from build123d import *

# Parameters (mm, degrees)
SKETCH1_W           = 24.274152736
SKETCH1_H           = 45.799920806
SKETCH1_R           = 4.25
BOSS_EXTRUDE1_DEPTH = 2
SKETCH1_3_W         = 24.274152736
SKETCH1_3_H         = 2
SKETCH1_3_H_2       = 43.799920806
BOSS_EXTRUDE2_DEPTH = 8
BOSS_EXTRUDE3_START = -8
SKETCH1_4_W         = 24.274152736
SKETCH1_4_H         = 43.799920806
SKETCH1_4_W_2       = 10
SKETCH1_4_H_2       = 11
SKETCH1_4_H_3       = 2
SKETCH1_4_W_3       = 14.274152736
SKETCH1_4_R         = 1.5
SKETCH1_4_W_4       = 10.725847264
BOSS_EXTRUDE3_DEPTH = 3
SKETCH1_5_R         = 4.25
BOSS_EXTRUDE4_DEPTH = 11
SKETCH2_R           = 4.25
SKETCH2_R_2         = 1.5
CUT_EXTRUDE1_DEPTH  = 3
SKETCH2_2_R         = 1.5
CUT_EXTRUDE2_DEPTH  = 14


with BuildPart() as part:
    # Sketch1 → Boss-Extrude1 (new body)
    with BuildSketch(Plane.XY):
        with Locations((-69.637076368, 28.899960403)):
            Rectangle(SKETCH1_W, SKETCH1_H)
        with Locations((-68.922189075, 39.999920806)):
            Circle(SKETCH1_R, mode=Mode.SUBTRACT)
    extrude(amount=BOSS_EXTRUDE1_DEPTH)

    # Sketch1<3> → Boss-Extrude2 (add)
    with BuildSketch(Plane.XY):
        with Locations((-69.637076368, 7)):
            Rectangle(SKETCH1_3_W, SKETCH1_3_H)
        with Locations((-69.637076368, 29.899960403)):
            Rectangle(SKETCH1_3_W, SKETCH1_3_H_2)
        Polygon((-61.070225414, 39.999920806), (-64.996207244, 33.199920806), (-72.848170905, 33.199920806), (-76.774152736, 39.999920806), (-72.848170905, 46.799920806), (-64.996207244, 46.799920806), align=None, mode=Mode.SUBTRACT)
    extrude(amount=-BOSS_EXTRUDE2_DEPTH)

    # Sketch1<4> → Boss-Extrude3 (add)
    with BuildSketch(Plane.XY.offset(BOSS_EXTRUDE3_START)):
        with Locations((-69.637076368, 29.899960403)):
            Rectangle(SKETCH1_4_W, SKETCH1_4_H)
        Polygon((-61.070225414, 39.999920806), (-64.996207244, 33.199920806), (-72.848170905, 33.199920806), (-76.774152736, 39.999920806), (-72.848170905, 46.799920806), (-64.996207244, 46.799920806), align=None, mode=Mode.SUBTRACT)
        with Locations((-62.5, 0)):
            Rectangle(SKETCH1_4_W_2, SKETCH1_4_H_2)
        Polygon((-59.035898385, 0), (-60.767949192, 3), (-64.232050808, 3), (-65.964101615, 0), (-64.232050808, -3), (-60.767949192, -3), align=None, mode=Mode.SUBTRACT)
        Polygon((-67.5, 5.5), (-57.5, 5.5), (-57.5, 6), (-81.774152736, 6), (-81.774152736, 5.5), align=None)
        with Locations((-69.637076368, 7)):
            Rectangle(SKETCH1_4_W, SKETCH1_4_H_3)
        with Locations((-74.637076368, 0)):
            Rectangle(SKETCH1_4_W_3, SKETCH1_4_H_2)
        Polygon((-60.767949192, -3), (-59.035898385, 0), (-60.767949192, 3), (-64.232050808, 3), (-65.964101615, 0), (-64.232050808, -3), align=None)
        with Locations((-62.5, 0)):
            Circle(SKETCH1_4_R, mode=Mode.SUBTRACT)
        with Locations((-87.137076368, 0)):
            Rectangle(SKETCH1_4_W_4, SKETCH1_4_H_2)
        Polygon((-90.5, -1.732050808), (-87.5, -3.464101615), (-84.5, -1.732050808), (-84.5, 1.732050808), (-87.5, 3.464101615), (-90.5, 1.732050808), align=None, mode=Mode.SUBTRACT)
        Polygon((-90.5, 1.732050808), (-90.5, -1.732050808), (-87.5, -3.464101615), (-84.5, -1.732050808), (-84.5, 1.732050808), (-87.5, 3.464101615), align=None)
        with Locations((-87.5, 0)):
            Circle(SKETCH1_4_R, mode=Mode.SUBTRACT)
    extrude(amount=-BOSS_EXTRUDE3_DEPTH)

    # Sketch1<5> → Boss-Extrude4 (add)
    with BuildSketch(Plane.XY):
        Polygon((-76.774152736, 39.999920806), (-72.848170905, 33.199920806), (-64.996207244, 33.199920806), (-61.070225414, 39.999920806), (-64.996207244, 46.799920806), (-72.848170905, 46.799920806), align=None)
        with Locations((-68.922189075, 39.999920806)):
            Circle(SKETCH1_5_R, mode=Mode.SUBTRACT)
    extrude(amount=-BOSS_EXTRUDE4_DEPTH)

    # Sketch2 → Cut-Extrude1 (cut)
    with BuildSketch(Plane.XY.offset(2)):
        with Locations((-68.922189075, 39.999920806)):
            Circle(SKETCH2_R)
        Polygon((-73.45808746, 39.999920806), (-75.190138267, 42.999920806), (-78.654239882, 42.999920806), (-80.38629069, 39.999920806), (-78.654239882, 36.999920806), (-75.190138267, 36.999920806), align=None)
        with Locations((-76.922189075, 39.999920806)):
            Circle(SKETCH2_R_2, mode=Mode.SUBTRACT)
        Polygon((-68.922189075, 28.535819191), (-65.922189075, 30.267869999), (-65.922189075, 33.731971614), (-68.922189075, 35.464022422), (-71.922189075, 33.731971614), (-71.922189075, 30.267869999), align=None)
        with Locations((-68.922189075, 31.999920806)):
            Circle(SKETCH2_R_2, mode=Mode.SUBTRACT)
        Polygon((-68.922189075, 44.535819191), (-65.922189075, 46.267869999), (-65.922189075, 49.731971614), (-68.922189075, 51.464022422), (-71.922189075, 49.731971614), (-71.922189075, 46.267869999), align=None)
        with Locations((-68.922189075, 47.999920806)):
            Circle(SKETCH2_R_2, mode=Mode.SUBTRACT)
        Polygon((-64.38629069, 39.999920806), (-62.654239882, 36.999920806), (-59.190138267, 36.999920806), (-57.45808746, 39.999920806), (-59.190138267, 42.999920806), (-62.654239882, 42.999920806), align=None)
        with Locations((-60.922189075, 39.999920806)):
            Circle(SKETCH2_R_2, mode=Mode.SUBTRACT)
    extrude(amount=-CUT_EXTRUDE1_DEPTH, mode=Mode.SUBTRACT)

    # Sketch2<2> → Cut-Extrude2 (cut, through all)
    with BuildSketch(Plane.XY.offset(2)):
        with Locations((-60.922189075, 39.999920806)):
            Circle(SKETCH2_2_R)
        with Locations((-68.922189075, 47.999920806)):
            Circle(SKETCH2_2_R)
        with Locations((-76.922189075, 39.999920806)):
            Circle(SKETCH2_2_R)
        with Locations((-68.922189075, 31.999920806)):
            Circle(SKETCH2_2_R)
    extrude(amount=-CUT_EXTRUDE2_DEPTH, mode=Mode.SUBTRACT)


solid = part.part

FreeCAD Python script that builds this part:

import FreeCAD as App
import Part
import Sketcher
Q = App.Units.Quantity

doc = App.newDocument("Part")
body = doc.addObject("PartDesign::Body", "Body")

# Sketch on XY plane
sketch1 = body.newObject("Sketcher::SketchObject", "Sketch")
sketch1.AttachmentSupport = (doc.getObject("XY_Plane"), [""])
sketch1.MapMode = "FlatFace"
sketch1.addGeometry([
    Part.LineSegment(App.Vector(-81.8, 51.8, 0), App.Vector(-81.8, 6, 0)),  # 0
    Part.LineSegment(App.Vector(-81.8, 6, 0), App.Vector(-57.5, 6, 0)),  # 1
    Part.LineSegment(App.Vector(-57.5, 6, 0), App.Vector(-57.5, 51.8, 0)),  # 2
    Part.LineSegment(App.Vector(-57.5, 51.8, 0), App.Vector(-81.8, 51.8, 0)),  # 3
    Part.Circle(App.Vector(-68.9, 40, 0), App.Vector(0, 0, 1), 4.2),  # 4
], False)
sketch1.addConstraint([
    Sketcher.Constraint("Coincident", 0, 2, 1, 1),
    Sketcher.Constraint("Coincident", 1, 2, 2, 1),
    Sketcher.Constraint("Coincident", 2, 2, 3, 1),
    Sketcher.Constraint("Coincident", 3, 2, 0, 1),
    Sketcher.Constraint("Vertical", 0),
    Sketcher.Constraint("Horizontal", 1),
    Sketcher.Constraint("Vertical", 2),
    Sketcher.Constraint("Horizontal", 3),
    Sketcher.Constraint("Diameter", 4, Q("8.5 mm")),
    Sketcher.Constraint("DistanceY", -1, 1, 0, 2, Q("6 mm")),
    Sketcher.Constraint("DistanceX", 1, 2, -1, 1, Q("57.5 mm")),
    Sketcher.Constraint("DistanceY", 4, 3, 2, 2, Q("11.8 mm")),
    Sketcher.Constraint("DistanceY", 0, 2, 0, 1, Q("45.799921 mm")),
    Sketcher.Constraint("DistanceX", 1, 1, 1, 2, Q("24.274153 mm")),
    Sketcher.Constraint("DistanceX", 4, 3, -1, 1, Q("68.922189 mm")),
])
pad1 = body.newObject("PartDesign::Pad", "Pad")
pad1.Profile = sketch1
pad1.Length = 2

# Sketch on XY plane
sketch2 = body.newObject("Sketcher::SketchObject", "Sketch001")
sketch2.AttachmentSupport = (doc.getObject("XY_Plane"), [""])
sketch2.MapMode = "FlatFace"
sketch2.addGeometry([
    Part.LineSegment(App.Vector(-82, 6, 0), App.Vector(-58, 6, 0)),  # 0
    Part.LineSegment(App.Vector(-58, 6, 0), App.Vector(-58, 52, 0)),  # 1
    Part.LineSegment(App.Vector(-58, 52, 0), App.Vector(-82, 52, 0)),  # 2
    Part.LineSegment(App.Vector(-82, 52, 0), App.Vector(-82, 6, 0)),  # 3
    Part.LineSegment(App.Vector(-65, 47, 0), App.Vector(-61, 40, 0)),  # 4
    Part.LineSegment(App.Vector(-61, 40, 0), App.Vector(-65, 33, 0)),  # 5
    Part.LineSegment(App.Vector(-65, 33, 0), App.Vector(-73, 33, 0)),  # 6
    Part.LineSegment(App.Vector(-73, 33, 0), App.Vector(-77, 40, 0)),  # 7
    Part.LineSegment(App.Vector(-77, 40, 0), App.Vector(-73, 47, 0)),  # 8
    Part.LineSegment(App.Vector(-73, 47, 0), App.Vector(-65, 47, 0)),  # 9
], False)
sketch2.addConstraint([
    Sketcher.Constraint("Coincident", 0, 2, 1, 1),
    Sketcher.Constraint("Coincident", 1, 2, 2, 1),
    Sketcher.Constraint("Coincident", 2, 2, 3, 1),
    Sketcher.Constraint("Coincident", 3, 2, 0, 1),
    Sketcher.Constraint("Coincident", 4, 2, 5, 1),
    Sketcher.Constraint("Coincident", 5, 2, 6, 1),
    Sketcher.Constraint("Coincident", 6, 2, 7, 1),
    Sketcher.Constraint("Coincident", 7, 2, 8, 1),
    Sketcher.Constraint("Coincident", 8, 2, 9, 1),
    Sketcher.Constraint("Coincident", 9, 2, 4, 1),
    Sketcher.Constraint("Horizontal", 0),
    Sketcher.Constraint("Vertical", 1),
    Sketcher.Constraint("Horizontal", 2),
    Sketcher.Constraint("Vertical", 3),
    Sketcher.Constraint("Horizontal", 6),
    Sketcher.Constraint("Horizontal", 9),
    Sketcher.Constraint("Parallel", 4, 7),
    Sketcher.Constraint("Parallel", 5, 8),
    Sketcher.Constraint("Horizontal", 4, 2, 7, 2),
    Sketcher.Constraint("Vertical", 6, 2, 8, 2),
    Sketcher.Constraint("Vertical", 5, 2, 9, 2),
    Sketcher.Constraint("Angle", 4, Q("-60 deg")),
    Sketcher.Constraint("DistanceY", -1, 1, 0, 2, Q("6 mm")),
    Sketcher.Constraint("DistanceX", 2, 2, 7, 2, Q("5 mm")),
    Sketcher.Constraint("DistanceY", 8, 2, 2, 2, Q("5 mm")),
    Sketcher.Constraint("DistanceX", 0, 2, -1, 1, Q("57.5 mm")),
    Sketcher.Constraint("DistanceY", 4, 2, 1, 2, Q("11.8 mm")),
    Sketcher.Constraint("DistanceY", 1, 1, 1, 2, Q("45.799921 mm")),
    Sketcher.Constraint("DistanceX", 0, 1, 0, 2, Q("24.274153 mm")),
    Sketcher.Constraint("DistanceX", 6, 2, 6, 1, Q("7.851964 mm")),
])
pad2 = body.newObject("PartDesign::Pad", "Pad001")
pad2.Profile = sketch2
pad2.Length = 8
pad2.Reversed = True

# Sketch on XY plane
sketch3 = body.newObject("Sketcher::SketchObject", "Sketch002")
sketch3.AttachmentSupport = (doc.getObject("XY_Plane"), [""])
sketch3.MapMode = "FlatFace"
sketch3.AttachmentOffset = App.Placement(App.Vector(0, 0, -8), App.Rotation())
sketch3.addGeometry([
    Part.LineSegment(App.Vector(-81.8, 51.8, 0), App.Vector(-81.8, 5.5, 0)),  # 0
    Part.LineSegment(App.Vector(-81.8, 5.5, 0), App.Vector(-92.5, 5.5, 0)),  # 1
    Part.LineSegment(App.Vector(-92.5, 5.5, 0), App.Vector(-92.5, -5.5, 0)),  # 2
    Part.LineSegment(App.Vector(-92.5, -5.5, 0), App.Vector(-57.5, -5.5, 0)),  # 3
    Part.LineSegment(App.Vector(-57.5, -5.5, 0), App.Vector(-57.5, 51.8, 0)),  # 4
    Part.LineSegment(App.Vector(-57.5, 51.8, 0), App.Vector(-81.8, 51.8, 0)),  # 5
    Part.Circle(App.Vector(-87.5, 0, 0), App.Vector(0, 0, 1), 1.5),  # 6
    Part.Circle(App.Vector(-62.5, 0, 0), App.Vector(0, 0, 1), 1.5),  # 7
    Part.LineSegment(App.Vector(-65, 46.8, 0), App.Vector(-61.1, 40, 0)),  # 8
    Part.LineSegment(App.Vector(-61.1, 40, 0), App.Vector(-65, 33.2, 0)),  # 9
    Part.LineSegment(App.Vector(-65, 33.2, 0), App.Vector(-72.8, 33.2, 0)),  # 10
    Part.LineSegment(App.Vector(-72.8, 33.2, 0), App.Vector(-76.8, 40, 0)),  # 11
    Part.LineSegment(App.Vector(-76.8, 40, 0), App.Vector(-72.8, 46.8, 0)),  # 12
    Part.LineSegment(App.Vector(-72.8, 46.8, 0), App.Vector(-65, 46.8, 0)),  # 13
], False)
sketch3.addConstraint([
    Sketcher.Constraint("Coincident", 0, 2, 1, 1),
    Sketcher.Constraint("Coincident", 1, 2, 2, 1),
    Sketcher.Constraint("Coincident", 2, 2, 3, 1),
    Sketcher.Constraint("Coincident", 3, 2, 4, 1),
    Sketcher.Constraint("Coincident", 4, 2, 5, 1),
    Sketcher.Constraint("Coincident", 5, 2, 0, 1),
    Sketcher.Constraint("Coincident", 8, 2, 9, 1),
    Sketcher.Constraint("Coincident", 9, 2, 10, 1),
    Sketcher.Constraint("Coincident", 10, 2, 11, 1),
    Sketcher.Constraint("Coincident", 11, 2, 12, 1),
    Sketcher.Constraint("Coincident", 12, 2, 13, 1),
    Sketcher.Constraint("Coincident", 13, 2, 8, 1),
    Sketcher.Constraint("Vertical", 0),
    Sketcher.Constraint("Horizontal", 1),
    Sketcher.Constraint("Vertical", 2),
    Sketcher.Constraint("Horizontal", 3),
    Sketcher.Constraint("Vertical", 4),
    Sketcher.Constraint("Horizontal", 5),
    Sketcher.Constraint("Horizontal", 10),
    Sketcher.Constraint("Horizontal", 13),
    Sketcher.Constraint("Equal", 6, 7),
    Sketcher.Constraint("PointOnObject", 6, 3, -1),
    Sketcher.Constraint("PointOnObject", 7, 3, -1),
    Sketcher.Constraint("Parallel", 8, 11),
    Sketcher.Constraint("Parallel", 9, 12),
    Sketcher.Constraint("Horizontal", 8, 2, 11, 2),
    Sketcher.Constraint("Vertical", 10, 2, 12, 2),
    Sketcher.Constraint("Vertical", 9, 2, 13, 2),
    Sketcher.Constraint("Diameter", 6, Q("3 mm")),
    Sketcher.Constraint("DistanceX", 3, 1, 3, 2, Q("35 mm")),
    Sketcher.Constraint("DistanceY", 2, 2, 2, 1, Q("11 mm")),
    Sketcher.Constraint("Angle", 8, Q("-60 deg")),
    Sketcher.Constraint("DistanceX", 6, 3, 7, 3, Q("25 mm")),
    Sketcher.Constraint("DistanceX", 1, 2, 6, 3, Q("5 mm")),
    Sketcher.Constraint("DistanceX", 5, 2, 11, 2, Q("5 mm")),
    Sketcher.Constraint("DistanceY", 12, 2, 5, 2, Q("5 mm")),
    Sketcher.Constraint("DistanceX", 6, 3, -1, 1, Q("87.5 mm")),
    Sketcher.Constraint("DistanceY", -1, 1, 0, 2, Q("5.5 mm")),
    Sketcher.Constraint("DistanceY", 8, 2, 4, 2, Q("11.8 mm")),
    Sketcher.Constraint("DistanceY", 0, 2, 0, 1, Q("46.299921 mm")),
    Sketcher.Constraint("DistanceX", 1, 2, 1, 1, Q("10.725847 mm")),
    Sketcher.Constraint("DistanceX", 10, 2, 10, 1, Q("7.851964 mm")),
])
pad3 = body.newObject("PartDesign::Pad", "Pad002")
pad3.Profile = sketch3
pad3.Length = 3
pad3.Reversed = True

# Sketch on XY plane
sketch4 = body.newObject("Sketcher::SketchObject", "Sketch003")
sketch4.AttachmentSupport = (doc.getObject("XY_Plane"), [""])
sketch4.MapMode = "FlatFace"
sketch4.addGeometry([
    Part.LineSegment(App.Vector(-76.8, 40, 0), App.Vector(-72.8, 33.2, 0)),  # 0
    Part.LineSegment(App.Vector(-72.8, 33.2, 0), App.Vector(-65, 33.2, 0)),  # 1
    Part.LineSegment(App.Vector(-65, 33.2, 0), App.Vector(-61.1, 40, 0)),  # 2
    Part.LineSegment(App.Vector(-61.1, 40, 0), App.Vector(-65, 46.8, 0)),  # 3
    Part.LineSegment(App.Vector(-65, 46.8, 0), App.Vector(-72.8, 46.8, 0)),  # 4
    Part.LineSegment(App.Vector(-72.8, 46.8, 0), App.Vector(-76.8, 40, 0)),  # 5
    Part.Circle(App.Vector(-68.9, 40, 0), App.Vector(0, 0, 1), 4.2),  # 6
], False)
sketch4.addConstraint([
    Sketcher.Constraint("Coincident", 0, 2, 1, 1),
    Sketcher.Constraint("Coincident", 1, 2, 2, 1),
    Sketcher.Constraint("Coincident", 2, 2, 3, 1),
    Sketcher.Constraint("Coincident", 3, 2, 4, 1),
    Sketcher.Constraint("Coincident", 4, 2, 5, 1),
    Sketcher.Constraint("Coincident", 5, 2, 0, 1),
    Sketcher.Constraint("Horizontal", 1),
    Sketcher.Constraint("Horizontal", 4),
    Sketcher.Constraint("Parallel", 0, 3),
    Sketcher.Constraint("Parallel", 2, 5),
    Sketcher.Constraint("Horizontal", 6, 3, 2, 2),
    Sketcher.Constraint("Horizontal", 2, 2, 5, 2),
    Sketcher.Constraint("Vertical", 1, 2, 3, 2),
    Sketcher.Constraint("Vertical", 0, 2, 4, 2),
    Sketcher.Constraint("Diameter", 6, Q("8.5 mm")),
    Sketcher.Constraint("Angle", 0, Q("-60 deg")),
    Sketcher.Constraint("DistanceY", 0, 2, 6, 3, Q("6.8 mm")),
    Sketcher.Constraint("DistanceX", 1, 1, 1, 2, Q("7.851964 mm")),
    Sketcher.Constraint("DistanceX", 6, 3, -1, 1, Q("68.922189 mm")),
    Sketcher.Constraint("DistanceY", -1, 1, 6, 3, Q("39.999921 mm")),
    Sketcher.Constraint("DistanceX", 0, 2, -1, 1, Q("72.848171 mm")),
])
pad4 = body.newObject("PartDesign::Pad", "Pad003")
pad4.Profile = sketch4
pad4.Length = 11
pad4.Reversed = True

# Sketch on XY plane
sketch5 = body.newObject("Sketcher::SketchObject", "Sketch004")
sketch5.AttachmentSupport = (doc.getObject("XY_Plane"), [""])
sketch5.MapMode = "FlatFace"
sketch5.AttachmentOffset = App.Placement(App.Vector(0, 0, 2), App.Rotation())
sketch5.addGeometry([
    Part.Circle(App.Vector(-68.9, 40, 0), App.Vector(0, 0, 1), 4.2),  # 0
    Part.LineSegment(App.Vector(-73.5, 40, 0), App.Vector(-75.2, 43, 0)),  # 1
    Part.LineSegment(App.Vector(-75.2, 43, 0), App.Vector(-78.7, 43, 0)),  # 2
    Part.LineSegment(App.Vector(-78.7, 43, 0), App.Vector(-80.4, 40, 0)),  # 3
    Part.LineSegment(App.Vector(-80.4, 40, 0), App.Vector(-78.7, 37, 0)),  # 4
    Part.LineSegment(App.Vector(-78.7, 37, 0), App.Vector(-75.2, 37, 0)),  # 5
    Part.LineSegment(App.Vector(-75.2, 37, 0), App.Vector(-73.5, 40, 0)),  # 6
    Part.Circle(App.Vector(-76.9, 40, 0), App.Vector(0, 0, 1), 1.5),  # 7
    Part.LineSegment(App.Vector(-68.9, 28.5, 0), App.Vector(-65.9, 30.3, 0)),  # 8
    Part.LineSegment(App.Vector(-65.9, 30.3, 0), App.Vector(-65.9, 33.7, 0)),  # 9
    Part.LineSegment(App.Vector(-65.9, 33.7, 0), App.Vector(-68.9, 35.5, 0)),  # 10
    Part.LineSegment(App.Vector(-68.9, 35.5, 0), App.Vector(-71.9, 33.7, 0)),  # 11
    Part.LineSegment(App.Vector(-71.9, 33.7, 0), App.Vector(-71.9, 30.3, 0)),  # 12
    Part.LineSegment(App.Vector(-71.9, 30.3, 0), App.Vector(-68.9, 28.5, 0)),  # 13
    Part.Circle(App.Vector(-68.9, 32, 0), App.Vector(0, 0, 1), 1.5),  # 14
    Part.LineSegment(App.Vector(-68.9, 44.5, 0), App.Vector(-65.9, 46.3, 0)),  # 15
    Part.LineSegment(App.Vector(-65.9, 46.3, 0), App.Vector(-65.9, 49.7, 0)),  # 16
    Part.LineSegment(App.Vector(-65.9, 49.7, 0), App.Vector(-68.9, 51.5, 0)),  # 17
    Part.LineSegment(App.Vector(-68.9, 51.5, 0), App.Vector(-71.9, 49.7, 0)),  # 18
    Part.LineSegment(App.Vector(-71.9, 49.7, 0), App.Vector(-71.9, 46.3, 0)),  # 19
    Part.LineSegment(App.Vector(-71.9, 46.3, 0), App.Vector(-68.9, 44.5, 0)),  # 20
    Part.Circle(App.Vector(-68.9, 48, 0), App.Vector(0, 0, 1), 1.5),  # 21
    Part.LineSegment(App.Vector(-64.4, 40, 0), App.Vector(-62.7, 37, 0)),  # 22
    Part.LineSegment(App.Vector(-62.7, 37, 0), App.Vector(-59.2, 37, 0)),  # 23
    Part.LineSegment(App.Vector(-59.2, 37, 0), App.Vector(-57.5, 40, 0)),  # 24
    Part.LineSegment(App.Vector(-57.5, 40, 0), App.Vector(-59.2, 43, 0)),  # 25
    Part.LineSegment(App.Vector(-59.2, 43, 0), App.Vector(-62.7, 43, 0)),  # 26
    Part.LineSegment(App.Vector(-62.7, 43, 0), App.Vector(-64.4, 40, 0)),  # 27
    Part.Circle(App.Vector(-60.9, 40, 0), App.Vector(0, 0, 1), 1.5),  # 28
], False)
sketch5.addConstraint([
    Sketcher.Constraint("Coincident", 1, 2, 2, 1),
    Sketcher.Constraint("Coincident", 2, 2, 3, 1),
    Sketcher.Constraint("Coincident", 3, 2, 4, 1),
    Sketcher.Constraint("Coincident", 4, 2, 5, 1),
    Sketcher.Constraint("Coincident", 5, 2, 6, 1),
    Sketcher.Constraint("Coincident", 6, 2, 1, 1),
    Sketcher.Constraint("Coincident", 8, 2, 9, 1),
    Sketcher.Constraint("Coincident", 9, 2, 10, 1),
    Sketcher.Constraint("Coincident", 10, 2, 11, 1),
    Sketcher.Constraint("Coincident", 11, 2, 12, 1),
    Sketcher.Constraint("Coincident", 12, 2, 13, 1),
    Sketcher.Constraint("Coincident", 13, 2, 8, 1),
    Sketcher.Constraint("Coincident", 15, 2, 16, 1),
    Sketcher.Constraint("Coincident", 16, 2, 17, 1),
    Sketcher.Constraint("Coincident", 17, 2, 18, 1),
    Sketcher.Constraint("Coincident", 18, 2, 19, 1),
    Sketcher.Constraint("Coincident", 19, 2, 20, 1),
    Sketcher.Constraint("Coincident", 20, 2, 15, 1),
    Sketcher.Constraint("Coincident", 22, 2, 23, 1),
    Sketcher.Constraint("Coincident", 23, 2, 24, 1),
    Sketcher.Constraint("Coincident", 24, 2, 25, 1),
    Sketcher.Constraint("Coincident", 25, 2, 26, 1),
    Sketcher.Constraint("Coincident", 26, 2, 27, 1),
    Sketcher.Constraint("Coincident", 27, 2, 22, 1),
    Sketcher.Constraint("Horizontal", 2),
    Sketcher.Constraint("Horizontal", 5),
    Sketcher.Constraint("Vertical", 9),
    Sketcher.Constraint("Vertical", 12),
    Sketcher.Constraint("Vertical", 16),
    Sketcher.Constraint("Vertical", 19),
    Sketcher.Constraint("Horizontal", 23),
    Sketcher.Constraint("Horizontal", 26),
    Sketcher.Constraint("Equal", 7, 14),
    Sketcher.Constraint("Equal", 14, 21),
    Sketcher.Constraint("Equal", 21, 28),
    Sketcher.Constraint("Parallel", 1, 4),
    Sketcher.Constraint("Parallel", 3, 6),
    Sketcher.Constraint("Perpendicular", 4, 8),
    Sketcher.Constraint("Perpendicular", 6, 10),
    Sketcher.Constraint("Parallel", 8, 11),
    Sketcher.Constraint("Parallel", 10, 13),
    Sketcher.Constraint("Parallel", 11, 15),
    Sketcher.Constraint("Parallel", 13, 17),
    Sketcher.Constraint("Parallel", 15, 18),
    Sketcher.Constraint("Parallel", 17, 20),
    Sketcher.Constraint("Perpendicular", 18, 22),
    Sketcher.Constraint("Perpendicular", 20, 24),
    Sketcher.Constraint("Parallel", 22, 25),
    Sketcher.Constraint("Parallel", 24, 27),
    Sketcher.Constraint("Horizontal", 0, 3, 7, 3),
    Sketcher.Constraint("Horizontal", 7, 3, 28, 3),
    Sketcher.Constraint("Horizontal", 28, 3, 3, 2),
    Sketcher.Constraint("Horizontal", 3, 2, 6, 2),
    Sketcher.Constraint("Horizontal", 9, 2, 11, 2),
    Sketcher.Constraint("Horizontal", 8, 2, 12, 2),
    Sketcher.Constraint("Horizontal", 16, 2, 18, 2),
    Sketcher.Constraint("Horizontal", 15, 2, 19, 2),
    Sketcher.Constraint("Horizontal", 5, 2, 22, 2),
    Sketcher.Constraint("Horizontal", 6, 2, 24, 2),
    Sketcher.Constraint("Horizontal", 2, 2, 25, 2),
    Sketcher.Constraint("Horizontal", 24, 2, 27, 2),
    Sketcher.Constraint("Vertical", 0, 3, 14, 3),
    Sketcher.Constraint("Vertical", 14, 3, 21, 3),
    Sketcher.Constraint("Vertical", 2, 2, 4, 2),
    Sketcher.Constraint("Vertical", 1, 2, 5, 2),
    Sketcher.Constraint("Vertical", 21, 3, 10, 2),
    Sketcher.Constraint("Vertical", 9, 2, 15, 2),
    Sketcher.Constraint("Vertical", 13, 2, 17, 2),
    Sketcher.Constraint("Equal", 5, 23),
    Sketcher.Constraint("Equal", 26, 9),
    Sketcher.Constraint("Equal", 12, 16),
    Sketcher.Constraint("Equal", 6, 8),
    Sketcher.Constraint("Diameter", 7, Q("3 mm")),
    Sketcher.Constraint("Diameter", 0, Q("8.5 mm")),
    Sketcher.Constraint("Angle", 1, Q("120 deg")),
    Sketcher.Constraint("DistanceX", 7, 3, 0, 3, Q("8 mm")),
    Sketcher.Constraint("DistanceY", 14, 3, 0, 3, Q("8 mm")),
    Sketcher.Constraint("DistanceY", 0, 3, 21, 3, Q("8 mm")),
    Sketcher.Constraint("DistanceX", 0, 3, 28, 3, Q("8 mm")),
    Sketcher.Constraint("DistanceY", 7, 3, 1, 2, Q("3 mm")),
    Sketcher.Constraint("DistanceX", 2, 2, 2, 1, Q("3.464102 mm")),
    Sketcher.Constraint("DistanceX", 3, 2, 7, 3, Q("3.464102 mm")),
    Sketcher.Constraint("DistanceY", 14, 3, 10, 2, Q("3.464102 mm")),
    Sketcher.Constraint("DistanceY", 21, 3, 17, 2, Q("3.464102 mm")),
    Sketcher.Constraint("DistanceX", 28, 3, 24, 2, Q("3.464102 mm")),
    Sketcher.Constraint("DistanceX", 0, 3, -1, 1, Q("68.922189 mm")),
    Sketcher.Constraint("DistanceY", -1, 1, 0, 3, Q("39.999921 mm")),
])
pocket1 = body.newObject("PartDesign::Pocket", "Pocket")
pocket1.Profile = sketch5
pocket1.Length = 3

# Sketch on XY plane
sketch6 = body.newObject("Sketcher::SketchObject", "Sketch005")
sketch6.AttachmentSupport = (doc.getObject("XY_Plane"), [""])
sketch6.MapMode = "FlatFace"
sketch6.AttachmentOffset = App.Placement(App.Vector(0, 0, 2), App.Rotation())
sketch6.addGeometry([
    Part.Circle(App.Vector(-60.9, 40, 0), App.Vector(0, 0, 1), 1.5),
    Part.Circle(App.Vector(-68.9, 48, 0), App.Vector(0, 0, 1), 1.5),
    Part.Circle(App.Vector(-76.9, 40, 0), App.Vector(0, 0, 1), 1.5),
    Part.Circle(App.Vector(-68.9, 32, 0), App.Vector(0, 0, 1), 1.5),
], False)
sketch6.addConstraint([
    Sketcher.Constraint("Equal", 0, 1),
    Sketcher.Constraint("Equal", 1, 2),
    Sketcher.Constraint("Equal", 2, 3),
    Sketcher.Constraint("Horizontal", 0, 3, 2, 3),
    Sketcher.Constraint("Vertical", 1, 3, 3, 3),
    Sketcher.Constraint("Diameter", 0, Q("3 mm")),
    Sketcher.Constraint("DistanceX", 1, 3, 0, 3, Q("8 mm")),
    Sketcher.Constraint("DistanceY", 0, 3, 1, 3, Q("8 mm")),
    Sketcher.Constraint("DistanceX", 2, 3, 1, 3, Q("8 mm")),
    Sketcher.Constraint("DistanceY", 3, 3, 2, 3, Q("8 mm")),
    Sketcher.Constraint("DistanceX", 0, 3, -1, 1, Q("60.922189 mm")),
    Sketcher.Constraint("DistanceY", -1, 1, 0, 3, Q("39.999921 mm")),
])
pocket2 = body.newObject("PartDesign::Pocket", "Pocket001")
pocket2.Profile = sketch6
pocket2.Type = "ThroughAll"

doc.recompute()
